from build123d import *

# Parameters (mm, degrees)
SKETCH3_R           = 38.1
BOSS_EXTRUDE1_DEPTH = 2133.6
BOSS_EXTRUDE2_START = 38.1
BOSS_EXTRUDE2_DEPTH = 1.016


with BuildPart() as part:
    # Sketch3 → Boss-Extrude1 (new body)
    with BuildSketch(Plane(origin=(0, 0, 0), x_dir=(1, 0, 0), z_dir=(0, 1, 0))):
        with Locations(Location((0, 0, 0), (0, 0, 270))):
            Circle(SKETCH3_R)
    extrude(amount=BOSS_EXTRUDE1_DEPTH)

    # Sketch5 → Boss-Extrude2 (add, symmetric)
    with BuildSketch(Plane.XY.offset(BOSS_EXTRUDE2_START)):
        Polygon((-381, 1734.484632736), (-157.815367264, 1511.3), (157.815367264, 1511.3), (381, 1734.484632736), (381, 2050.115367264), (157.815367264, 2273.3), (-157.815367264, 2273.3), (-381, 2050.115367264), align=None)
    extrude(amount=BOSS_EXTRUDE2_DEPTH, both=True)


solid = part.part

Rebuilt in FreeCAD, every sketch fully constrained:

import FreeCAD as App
import Part
import Sketcher

V = App.Vector
Q = App.Units.Quantity


def add_polygon(sketch, points):
    """Adds a closed chain of lines whose ends are joined by coincident constraints."""
    first, n = sketch.GeometryCount, len(points)
    for a, b in zip(points, points[1:] + points[:1]):
        sketch.addGeometry(Part.LineSegment(App.Vector(*a, 0), App.Vector(*b, 0)), False)
    for i in range(n):
        sketch.addConstraint(Sketcher.Constraint("Coincident", first + i, 2, first + (i + 1) % n, 1))

doc = App.newDocument("Part")
params = doc.addObject("Spreadsheet::Sheet", "Params")
for row, (alias, value) in enumerate([
    ("sketch1_diameter", "3 in"),
    ("pad1_length", "84 in"),
    ("pad2_length", "0.08 in"),
], start=1):
    params.set(f"A{row}", alias)
    params.set(f"B{row}", "=" + value)
    params.setAlias(f"B{row}", alias)

body = doc.addObject("PartDesign::Body", "Body")

sketch1 = body.newObject("Sketcher::SketchObject", "Sketch")
sketch1.AttachmentSupport = (doc.getObject("XZ_Plane"), [""])
sketch1.MapMode = "FlatFace"
sketch1.addGeometry(Part.Circle(V(0, 0, 0), V(0, 0, 1), 38.1), False)
sketch1.addConstraint(Sketcher.Constraint("Coincident", 0, 3, -1, 1))
sketch1.addConstraint(Sketcher.Constraint("Diameter", 0, Q("3 in")))
sketch1.setExpression("Constraints[1]", "Params.sketch1_diameter")
pad1 = body.newObject("PartDesign::Pad", "Pad")
pad1.Profile = sketch1
pad1.setExpression("Length", "Params.pad1_length")
pad1.Reversed = True

sketch2 = body.newObject("Sketcher::SketchObject", "Sketch001")
sketch2.AttachmentSupport = (doc.getObject("XY_Plane"), [""])
sketch2.MapMode = "FlatFace"
sketch2.AttachmentOffset = App.Placement(V(0, 0, 1.5 * 25.4), App.Rotation())
add_polygon(sketch2, [(-381, 1734.484633), (-157.815367, 1511.3), (157.815367, 1511.3), (381, 1734.484633), (381, 2050.115367), (157.815367, 2273.3), (-157.815367, 2273.3), (-381, 2050.115367)])
sketch2.addConstraint(Sketcher.Constraint("Horizontal", 1))
sketch2.addConstraint(Sketcher.Constraint("Vertical", 3))
sketch2.addConstraint(Sketcher.Constraint("Horizontal", 5))
sketch2.addConstraint(Sketcher.Constraint("Vertical", 7))
sketch2.addConstraint(Sketcher.Constraint("Symmetric", 3, 2, 6, 2, -2))
sketch2.addConstraint(Sketcher.Constraint("Perpendicular", 0, 2))
sketch2.addConstraint(Sketcher.Constraint("Perpendicular", 2, 4))
sketch2.addConstraint(Sketcher.Constraint("Perpendicular", 4, 6))
sketch2.addConstraint(Sketcher.Constraint("Horizontal", 2, 2, 7, 2))
sketch2.addConstraint(Sketcher.Constraint("Vertical", 1, 2, 4, 2))
sketch2.addConstraint(Sketcher.Constraint("Vertical", 0, 2, 5, 2))
sketch2.addConstraint(Sketcher.Constraint("Equal", 5, 3))
sketch2.addConstraint(Sketcher.Constraint("DistanceX", -1, 1, 2, 2, Q("15 in")))
sketch2.addConstraint(Sketcher.Constraint("DistanceY", -1, 1, 0, 2, Q("59.5 in")))
sketch2.addConstraint(Sketcher.Constraint("DistanceX", 1, 1, 1, 2, Q("315.630735 mm")))
pad2 = body.newObject("PartDesign::Pad", "Pad001")
pad2.Profile = sketch2
pad2.setExpression("Length", "Params.pad2_length")
pad2.Midplane = True

doc.recompute()
